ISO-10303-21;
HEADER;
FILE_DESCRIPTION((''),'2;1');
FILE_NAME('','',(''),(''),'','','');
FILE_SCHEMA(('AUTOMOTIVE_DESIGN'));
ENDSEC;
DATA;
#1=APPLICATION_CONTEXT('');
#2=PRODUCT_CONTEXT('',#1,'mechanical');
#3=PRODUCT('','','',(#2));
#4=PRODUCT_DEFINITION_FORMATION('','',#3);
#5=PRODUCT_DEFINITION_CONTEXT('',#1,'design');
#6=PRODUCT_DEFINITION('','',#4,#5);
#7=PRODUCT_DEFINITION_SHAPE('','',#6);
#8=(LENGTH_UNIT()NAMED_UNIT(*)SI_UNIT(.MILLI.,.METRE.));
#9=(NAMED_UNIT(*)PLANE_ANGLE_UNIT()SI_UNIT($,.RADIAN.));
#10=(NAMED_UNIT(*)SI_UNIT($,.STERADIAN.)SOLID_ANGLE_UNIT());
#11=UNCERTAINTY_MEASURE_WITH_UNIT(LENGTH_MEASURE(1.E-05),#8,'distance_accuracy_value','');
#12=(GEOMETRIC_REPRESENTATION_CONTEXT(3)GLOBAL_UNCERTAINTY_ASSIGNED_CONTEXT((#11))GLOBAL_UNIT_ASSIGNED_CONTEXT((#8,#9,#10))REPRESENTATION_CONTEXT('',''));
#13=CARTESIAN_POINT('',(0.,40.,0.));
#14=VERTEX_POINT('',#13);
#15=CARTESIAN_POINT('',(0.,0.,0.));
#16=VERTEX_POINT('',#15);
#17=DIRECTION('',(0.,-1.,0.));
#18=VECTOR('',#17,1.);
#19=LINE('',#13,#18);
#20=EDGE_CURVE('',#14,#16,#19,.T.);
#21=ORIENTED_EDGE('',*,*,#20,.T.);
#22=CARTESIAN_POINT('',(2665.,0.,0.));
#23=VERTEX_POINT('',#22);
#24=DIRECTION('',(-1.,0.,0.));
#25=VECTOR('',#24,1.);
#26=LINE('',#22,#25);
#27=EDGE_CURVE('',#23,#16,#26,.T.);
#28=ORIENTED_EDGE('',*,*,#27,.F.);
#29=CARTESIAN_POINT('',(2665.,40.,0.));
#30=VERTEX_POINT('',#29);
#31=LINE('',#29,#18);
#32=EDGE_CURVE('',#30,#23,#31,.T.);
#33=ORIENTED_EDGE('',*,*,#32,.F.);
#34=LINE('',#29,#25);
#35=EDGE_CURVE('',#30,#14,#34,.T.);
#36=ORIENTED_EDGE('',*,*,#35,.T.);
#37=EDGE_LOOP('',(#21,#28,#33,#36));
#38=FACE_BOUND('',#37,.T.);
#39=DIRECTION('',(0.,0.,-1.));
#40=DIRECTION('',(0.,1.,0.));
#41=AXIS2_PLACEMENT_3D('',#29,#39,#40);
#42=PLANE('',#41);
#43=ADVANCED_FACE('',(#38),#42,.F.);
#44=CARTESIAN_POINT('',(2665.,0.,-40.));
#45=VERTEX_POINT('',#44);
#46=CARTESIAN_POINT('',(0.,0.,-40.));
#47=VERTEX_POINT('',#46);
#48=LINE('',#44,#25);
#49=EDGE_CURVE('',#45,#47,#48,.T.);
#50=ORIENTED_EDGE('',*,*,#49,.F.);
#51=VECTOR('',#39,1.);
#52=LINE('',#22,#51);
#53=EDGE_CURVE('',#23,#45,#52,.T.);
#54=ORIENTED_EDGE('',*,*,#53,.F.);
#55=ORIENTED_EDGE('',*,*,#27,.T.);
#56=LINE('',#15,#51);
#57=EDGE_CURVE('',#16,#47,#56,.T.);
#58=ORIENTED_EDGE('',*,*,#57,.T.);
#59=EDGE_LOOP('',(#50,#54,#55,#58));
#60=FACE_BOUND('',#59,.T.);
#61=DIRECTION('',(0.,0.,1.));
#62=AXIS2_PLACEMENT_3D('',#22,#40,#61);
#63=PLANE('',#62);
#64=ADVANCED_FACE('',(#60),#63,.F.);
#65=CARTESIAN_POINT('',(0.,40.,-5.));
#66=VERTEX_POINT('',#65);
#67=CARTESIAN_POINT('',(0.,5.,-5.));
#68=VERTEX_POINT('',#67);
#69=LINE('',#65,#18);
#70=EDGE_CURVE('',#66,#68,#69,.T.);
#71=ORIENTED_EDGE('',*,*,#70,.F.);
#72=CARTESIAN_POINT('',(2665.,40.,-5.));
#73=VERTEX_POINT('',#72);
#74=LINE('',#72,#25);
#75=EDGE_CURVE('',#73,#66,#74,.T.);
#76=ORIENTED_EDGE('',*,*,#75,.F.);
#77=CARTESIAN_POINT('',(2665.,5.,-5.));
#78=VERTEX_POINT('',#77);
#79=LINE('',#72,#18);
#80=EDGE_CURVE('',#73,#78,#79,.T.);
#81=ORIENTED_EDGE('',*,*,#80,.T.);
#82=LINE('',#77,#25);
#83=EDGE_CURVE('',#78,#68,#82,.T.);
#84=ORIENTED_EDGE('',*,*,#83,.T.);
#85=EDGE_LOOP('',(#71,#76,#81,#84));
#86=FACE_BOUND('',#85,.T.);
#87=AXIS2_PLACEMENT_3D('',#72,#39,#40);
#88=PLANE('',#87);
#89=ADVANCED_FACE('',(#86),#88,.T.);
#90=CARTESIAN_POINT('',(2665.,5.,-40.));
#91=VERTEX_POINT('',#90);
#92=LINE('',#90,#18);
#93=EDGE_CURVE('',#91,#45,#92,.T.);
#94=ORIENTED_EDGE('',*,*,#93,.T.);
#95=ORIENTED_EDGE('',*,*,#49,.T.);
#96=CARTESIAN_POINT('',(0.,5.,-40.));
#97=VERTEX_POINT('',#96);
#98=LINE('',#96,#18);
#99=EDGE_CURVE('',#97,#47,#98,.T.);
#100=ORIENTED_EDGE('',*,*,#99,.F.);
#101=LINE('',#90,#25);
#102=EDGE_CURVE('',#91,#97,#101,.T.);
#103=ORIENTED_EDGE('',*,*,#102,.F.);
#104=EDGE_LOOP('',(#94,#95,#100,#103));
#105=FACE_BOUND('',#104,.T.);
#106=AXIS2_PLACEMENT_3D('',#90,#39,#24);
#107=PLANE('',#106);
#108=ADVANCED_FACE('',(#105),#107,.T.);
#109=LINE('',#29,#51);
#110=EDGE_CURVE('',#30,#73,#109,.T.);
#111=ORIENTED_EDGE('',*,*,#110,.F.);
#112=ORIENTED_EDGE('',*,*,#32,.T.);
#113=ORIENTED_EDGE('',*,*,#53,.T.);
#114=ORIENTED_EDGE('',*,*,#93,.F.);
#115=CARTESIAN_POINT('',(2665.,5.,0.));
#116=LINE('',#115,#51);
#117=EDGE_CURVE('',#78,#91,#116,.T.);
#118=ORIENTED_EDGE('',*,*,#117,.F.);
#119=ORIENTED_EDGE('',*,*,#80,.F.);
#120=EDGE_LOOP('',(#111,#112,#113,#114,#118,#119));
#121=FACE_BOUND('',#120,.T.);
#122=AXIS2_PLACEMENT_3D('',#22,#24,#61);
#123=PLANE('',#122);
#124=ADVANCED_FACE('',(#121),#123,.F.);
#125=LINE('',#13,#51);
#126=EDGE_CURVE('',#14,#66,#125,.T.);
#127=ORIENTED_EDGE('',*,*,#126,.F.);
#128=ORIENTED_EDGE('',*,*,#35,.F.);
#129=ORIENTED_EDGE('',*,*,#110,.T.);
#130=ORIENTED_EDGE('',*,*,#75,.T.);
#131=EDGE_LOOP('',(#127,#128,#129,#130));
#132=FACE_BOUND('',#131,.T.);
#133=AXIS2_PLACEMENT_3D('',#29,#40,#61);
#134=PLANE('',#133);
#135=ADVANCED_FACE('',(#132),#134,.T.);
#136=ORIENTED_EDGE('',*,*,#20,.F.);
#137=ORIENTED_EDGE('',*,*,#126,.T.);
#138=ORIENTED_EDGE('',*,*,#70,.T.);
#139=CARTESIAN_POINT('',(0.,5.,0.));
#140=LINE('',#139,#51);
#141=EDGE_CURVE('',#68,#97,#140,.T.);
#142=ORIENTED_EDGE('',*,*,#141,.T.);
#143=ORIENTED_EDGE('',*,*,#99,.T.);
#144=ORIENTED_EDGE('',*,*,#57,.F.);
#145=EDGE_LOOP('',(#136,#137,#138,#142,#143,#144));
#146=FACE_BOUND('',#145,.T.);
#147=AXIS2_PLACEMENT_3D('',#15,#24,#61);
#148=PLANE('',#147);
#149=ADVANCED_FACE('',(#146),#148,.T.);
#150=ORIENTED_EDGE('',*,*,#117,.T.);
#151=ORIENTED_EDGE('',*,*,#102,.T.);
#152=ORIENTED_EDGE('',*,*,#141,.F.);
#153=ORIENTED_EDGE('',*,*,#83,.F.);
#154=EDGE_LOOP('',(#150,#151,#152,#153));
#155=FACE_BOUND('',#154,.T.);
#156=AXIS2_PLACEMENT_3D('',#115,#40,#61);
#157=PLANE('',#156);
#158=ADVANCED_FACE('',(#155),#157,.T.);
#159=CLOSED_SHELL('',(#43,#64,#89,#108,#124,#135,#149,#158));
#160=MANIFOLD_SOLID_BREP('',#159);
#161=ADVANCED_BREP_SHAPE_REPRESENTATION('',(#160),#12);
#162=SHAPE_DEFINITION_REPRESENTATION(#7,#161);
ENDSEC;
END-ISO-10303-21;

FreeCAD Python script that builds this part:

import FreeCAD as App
import Part
import Sketcher
from FreeCAD import Vector
Q = App.Units.Quantity

doc = App.newDocument("Part")
body = doc.addObject("PartDesign::Body", "Body")

# Sketch on YZ plane
sketch1 = body.newObject("Sketcher::SketchObject", "Sketch")
sketch1.AttachmentSupport = (doc.getObject("YZ_Plane"), [""])
sketch1.MapMode = "FlatFace"
sketch1.addGeometry([
    Part.LineSegment(Vector(40, 0, 0), Vector(0, 0, 0)),  # 0
    Part.LineSegment(Vector(0, 0, 0), Vector(0, -40, 0)),  # 1
    Part.LineSegment(Vector(0, -40, 0), Vector(5, -40, 0)),  # 2
    Part.LineSegment(Vector(5, -40, 0), Vector(5, -5, 0)),  # 3
    Part.LineSegment(Vector(5, -5, 0), Vector(40, -5, 0)),  # 4
    Part.LineSegment(Vector(40, -5, 0), Vector(40, 0, 0)),  # 5
], False)
sketch1.addConstraint([
    Sketcher.Constraint("Coincident", 0, 2, 1, 1),
    Sketcher.Constraint("Coincident", 1, 2, 2, 1),
    Sketcher.Constraint("Coincident", 2, 2, 3, 1),
    Sketcher.Constraint("Coincident", 3, 2, 4, 1),
    Sketcher.Constraint("Coincident", 4, 2, 5, 1),
    Sketcher.Constraint("Coincident", 5, 2, 0, 1),
    Sketcher.Constraint("Horizontal", 0),
    Sketcher.Constraint("Vertical", 1),
    Sketcher.Constraint("Horizontal", 2),
    Sketcher.Constraint("Vertical", 3),
    Sketcher.Constraint("Horizontal", 4),
    Sketcher.Constraint("Vertical", 5),
    Sketcher.Constraint("Coincident", 0, 2, -1, 1),
    Sketcher.Constraint("Equal", 0, 1),
    Sketcher.Constraint("Equal", 4, 3),
    Sketcher.Constraint("DistanceX", 0, 2, 0, 1, Q("40 mm")),
    Sketcher.Constraint("DistanceX", 2, 1, 2, 2, Q("5 mm")),
])
pad1 = body.newObject("PartDesign::Pad", "Pad")
pad1.Profile = sketch1
pad1.Length = 2665

doc.recompute()
